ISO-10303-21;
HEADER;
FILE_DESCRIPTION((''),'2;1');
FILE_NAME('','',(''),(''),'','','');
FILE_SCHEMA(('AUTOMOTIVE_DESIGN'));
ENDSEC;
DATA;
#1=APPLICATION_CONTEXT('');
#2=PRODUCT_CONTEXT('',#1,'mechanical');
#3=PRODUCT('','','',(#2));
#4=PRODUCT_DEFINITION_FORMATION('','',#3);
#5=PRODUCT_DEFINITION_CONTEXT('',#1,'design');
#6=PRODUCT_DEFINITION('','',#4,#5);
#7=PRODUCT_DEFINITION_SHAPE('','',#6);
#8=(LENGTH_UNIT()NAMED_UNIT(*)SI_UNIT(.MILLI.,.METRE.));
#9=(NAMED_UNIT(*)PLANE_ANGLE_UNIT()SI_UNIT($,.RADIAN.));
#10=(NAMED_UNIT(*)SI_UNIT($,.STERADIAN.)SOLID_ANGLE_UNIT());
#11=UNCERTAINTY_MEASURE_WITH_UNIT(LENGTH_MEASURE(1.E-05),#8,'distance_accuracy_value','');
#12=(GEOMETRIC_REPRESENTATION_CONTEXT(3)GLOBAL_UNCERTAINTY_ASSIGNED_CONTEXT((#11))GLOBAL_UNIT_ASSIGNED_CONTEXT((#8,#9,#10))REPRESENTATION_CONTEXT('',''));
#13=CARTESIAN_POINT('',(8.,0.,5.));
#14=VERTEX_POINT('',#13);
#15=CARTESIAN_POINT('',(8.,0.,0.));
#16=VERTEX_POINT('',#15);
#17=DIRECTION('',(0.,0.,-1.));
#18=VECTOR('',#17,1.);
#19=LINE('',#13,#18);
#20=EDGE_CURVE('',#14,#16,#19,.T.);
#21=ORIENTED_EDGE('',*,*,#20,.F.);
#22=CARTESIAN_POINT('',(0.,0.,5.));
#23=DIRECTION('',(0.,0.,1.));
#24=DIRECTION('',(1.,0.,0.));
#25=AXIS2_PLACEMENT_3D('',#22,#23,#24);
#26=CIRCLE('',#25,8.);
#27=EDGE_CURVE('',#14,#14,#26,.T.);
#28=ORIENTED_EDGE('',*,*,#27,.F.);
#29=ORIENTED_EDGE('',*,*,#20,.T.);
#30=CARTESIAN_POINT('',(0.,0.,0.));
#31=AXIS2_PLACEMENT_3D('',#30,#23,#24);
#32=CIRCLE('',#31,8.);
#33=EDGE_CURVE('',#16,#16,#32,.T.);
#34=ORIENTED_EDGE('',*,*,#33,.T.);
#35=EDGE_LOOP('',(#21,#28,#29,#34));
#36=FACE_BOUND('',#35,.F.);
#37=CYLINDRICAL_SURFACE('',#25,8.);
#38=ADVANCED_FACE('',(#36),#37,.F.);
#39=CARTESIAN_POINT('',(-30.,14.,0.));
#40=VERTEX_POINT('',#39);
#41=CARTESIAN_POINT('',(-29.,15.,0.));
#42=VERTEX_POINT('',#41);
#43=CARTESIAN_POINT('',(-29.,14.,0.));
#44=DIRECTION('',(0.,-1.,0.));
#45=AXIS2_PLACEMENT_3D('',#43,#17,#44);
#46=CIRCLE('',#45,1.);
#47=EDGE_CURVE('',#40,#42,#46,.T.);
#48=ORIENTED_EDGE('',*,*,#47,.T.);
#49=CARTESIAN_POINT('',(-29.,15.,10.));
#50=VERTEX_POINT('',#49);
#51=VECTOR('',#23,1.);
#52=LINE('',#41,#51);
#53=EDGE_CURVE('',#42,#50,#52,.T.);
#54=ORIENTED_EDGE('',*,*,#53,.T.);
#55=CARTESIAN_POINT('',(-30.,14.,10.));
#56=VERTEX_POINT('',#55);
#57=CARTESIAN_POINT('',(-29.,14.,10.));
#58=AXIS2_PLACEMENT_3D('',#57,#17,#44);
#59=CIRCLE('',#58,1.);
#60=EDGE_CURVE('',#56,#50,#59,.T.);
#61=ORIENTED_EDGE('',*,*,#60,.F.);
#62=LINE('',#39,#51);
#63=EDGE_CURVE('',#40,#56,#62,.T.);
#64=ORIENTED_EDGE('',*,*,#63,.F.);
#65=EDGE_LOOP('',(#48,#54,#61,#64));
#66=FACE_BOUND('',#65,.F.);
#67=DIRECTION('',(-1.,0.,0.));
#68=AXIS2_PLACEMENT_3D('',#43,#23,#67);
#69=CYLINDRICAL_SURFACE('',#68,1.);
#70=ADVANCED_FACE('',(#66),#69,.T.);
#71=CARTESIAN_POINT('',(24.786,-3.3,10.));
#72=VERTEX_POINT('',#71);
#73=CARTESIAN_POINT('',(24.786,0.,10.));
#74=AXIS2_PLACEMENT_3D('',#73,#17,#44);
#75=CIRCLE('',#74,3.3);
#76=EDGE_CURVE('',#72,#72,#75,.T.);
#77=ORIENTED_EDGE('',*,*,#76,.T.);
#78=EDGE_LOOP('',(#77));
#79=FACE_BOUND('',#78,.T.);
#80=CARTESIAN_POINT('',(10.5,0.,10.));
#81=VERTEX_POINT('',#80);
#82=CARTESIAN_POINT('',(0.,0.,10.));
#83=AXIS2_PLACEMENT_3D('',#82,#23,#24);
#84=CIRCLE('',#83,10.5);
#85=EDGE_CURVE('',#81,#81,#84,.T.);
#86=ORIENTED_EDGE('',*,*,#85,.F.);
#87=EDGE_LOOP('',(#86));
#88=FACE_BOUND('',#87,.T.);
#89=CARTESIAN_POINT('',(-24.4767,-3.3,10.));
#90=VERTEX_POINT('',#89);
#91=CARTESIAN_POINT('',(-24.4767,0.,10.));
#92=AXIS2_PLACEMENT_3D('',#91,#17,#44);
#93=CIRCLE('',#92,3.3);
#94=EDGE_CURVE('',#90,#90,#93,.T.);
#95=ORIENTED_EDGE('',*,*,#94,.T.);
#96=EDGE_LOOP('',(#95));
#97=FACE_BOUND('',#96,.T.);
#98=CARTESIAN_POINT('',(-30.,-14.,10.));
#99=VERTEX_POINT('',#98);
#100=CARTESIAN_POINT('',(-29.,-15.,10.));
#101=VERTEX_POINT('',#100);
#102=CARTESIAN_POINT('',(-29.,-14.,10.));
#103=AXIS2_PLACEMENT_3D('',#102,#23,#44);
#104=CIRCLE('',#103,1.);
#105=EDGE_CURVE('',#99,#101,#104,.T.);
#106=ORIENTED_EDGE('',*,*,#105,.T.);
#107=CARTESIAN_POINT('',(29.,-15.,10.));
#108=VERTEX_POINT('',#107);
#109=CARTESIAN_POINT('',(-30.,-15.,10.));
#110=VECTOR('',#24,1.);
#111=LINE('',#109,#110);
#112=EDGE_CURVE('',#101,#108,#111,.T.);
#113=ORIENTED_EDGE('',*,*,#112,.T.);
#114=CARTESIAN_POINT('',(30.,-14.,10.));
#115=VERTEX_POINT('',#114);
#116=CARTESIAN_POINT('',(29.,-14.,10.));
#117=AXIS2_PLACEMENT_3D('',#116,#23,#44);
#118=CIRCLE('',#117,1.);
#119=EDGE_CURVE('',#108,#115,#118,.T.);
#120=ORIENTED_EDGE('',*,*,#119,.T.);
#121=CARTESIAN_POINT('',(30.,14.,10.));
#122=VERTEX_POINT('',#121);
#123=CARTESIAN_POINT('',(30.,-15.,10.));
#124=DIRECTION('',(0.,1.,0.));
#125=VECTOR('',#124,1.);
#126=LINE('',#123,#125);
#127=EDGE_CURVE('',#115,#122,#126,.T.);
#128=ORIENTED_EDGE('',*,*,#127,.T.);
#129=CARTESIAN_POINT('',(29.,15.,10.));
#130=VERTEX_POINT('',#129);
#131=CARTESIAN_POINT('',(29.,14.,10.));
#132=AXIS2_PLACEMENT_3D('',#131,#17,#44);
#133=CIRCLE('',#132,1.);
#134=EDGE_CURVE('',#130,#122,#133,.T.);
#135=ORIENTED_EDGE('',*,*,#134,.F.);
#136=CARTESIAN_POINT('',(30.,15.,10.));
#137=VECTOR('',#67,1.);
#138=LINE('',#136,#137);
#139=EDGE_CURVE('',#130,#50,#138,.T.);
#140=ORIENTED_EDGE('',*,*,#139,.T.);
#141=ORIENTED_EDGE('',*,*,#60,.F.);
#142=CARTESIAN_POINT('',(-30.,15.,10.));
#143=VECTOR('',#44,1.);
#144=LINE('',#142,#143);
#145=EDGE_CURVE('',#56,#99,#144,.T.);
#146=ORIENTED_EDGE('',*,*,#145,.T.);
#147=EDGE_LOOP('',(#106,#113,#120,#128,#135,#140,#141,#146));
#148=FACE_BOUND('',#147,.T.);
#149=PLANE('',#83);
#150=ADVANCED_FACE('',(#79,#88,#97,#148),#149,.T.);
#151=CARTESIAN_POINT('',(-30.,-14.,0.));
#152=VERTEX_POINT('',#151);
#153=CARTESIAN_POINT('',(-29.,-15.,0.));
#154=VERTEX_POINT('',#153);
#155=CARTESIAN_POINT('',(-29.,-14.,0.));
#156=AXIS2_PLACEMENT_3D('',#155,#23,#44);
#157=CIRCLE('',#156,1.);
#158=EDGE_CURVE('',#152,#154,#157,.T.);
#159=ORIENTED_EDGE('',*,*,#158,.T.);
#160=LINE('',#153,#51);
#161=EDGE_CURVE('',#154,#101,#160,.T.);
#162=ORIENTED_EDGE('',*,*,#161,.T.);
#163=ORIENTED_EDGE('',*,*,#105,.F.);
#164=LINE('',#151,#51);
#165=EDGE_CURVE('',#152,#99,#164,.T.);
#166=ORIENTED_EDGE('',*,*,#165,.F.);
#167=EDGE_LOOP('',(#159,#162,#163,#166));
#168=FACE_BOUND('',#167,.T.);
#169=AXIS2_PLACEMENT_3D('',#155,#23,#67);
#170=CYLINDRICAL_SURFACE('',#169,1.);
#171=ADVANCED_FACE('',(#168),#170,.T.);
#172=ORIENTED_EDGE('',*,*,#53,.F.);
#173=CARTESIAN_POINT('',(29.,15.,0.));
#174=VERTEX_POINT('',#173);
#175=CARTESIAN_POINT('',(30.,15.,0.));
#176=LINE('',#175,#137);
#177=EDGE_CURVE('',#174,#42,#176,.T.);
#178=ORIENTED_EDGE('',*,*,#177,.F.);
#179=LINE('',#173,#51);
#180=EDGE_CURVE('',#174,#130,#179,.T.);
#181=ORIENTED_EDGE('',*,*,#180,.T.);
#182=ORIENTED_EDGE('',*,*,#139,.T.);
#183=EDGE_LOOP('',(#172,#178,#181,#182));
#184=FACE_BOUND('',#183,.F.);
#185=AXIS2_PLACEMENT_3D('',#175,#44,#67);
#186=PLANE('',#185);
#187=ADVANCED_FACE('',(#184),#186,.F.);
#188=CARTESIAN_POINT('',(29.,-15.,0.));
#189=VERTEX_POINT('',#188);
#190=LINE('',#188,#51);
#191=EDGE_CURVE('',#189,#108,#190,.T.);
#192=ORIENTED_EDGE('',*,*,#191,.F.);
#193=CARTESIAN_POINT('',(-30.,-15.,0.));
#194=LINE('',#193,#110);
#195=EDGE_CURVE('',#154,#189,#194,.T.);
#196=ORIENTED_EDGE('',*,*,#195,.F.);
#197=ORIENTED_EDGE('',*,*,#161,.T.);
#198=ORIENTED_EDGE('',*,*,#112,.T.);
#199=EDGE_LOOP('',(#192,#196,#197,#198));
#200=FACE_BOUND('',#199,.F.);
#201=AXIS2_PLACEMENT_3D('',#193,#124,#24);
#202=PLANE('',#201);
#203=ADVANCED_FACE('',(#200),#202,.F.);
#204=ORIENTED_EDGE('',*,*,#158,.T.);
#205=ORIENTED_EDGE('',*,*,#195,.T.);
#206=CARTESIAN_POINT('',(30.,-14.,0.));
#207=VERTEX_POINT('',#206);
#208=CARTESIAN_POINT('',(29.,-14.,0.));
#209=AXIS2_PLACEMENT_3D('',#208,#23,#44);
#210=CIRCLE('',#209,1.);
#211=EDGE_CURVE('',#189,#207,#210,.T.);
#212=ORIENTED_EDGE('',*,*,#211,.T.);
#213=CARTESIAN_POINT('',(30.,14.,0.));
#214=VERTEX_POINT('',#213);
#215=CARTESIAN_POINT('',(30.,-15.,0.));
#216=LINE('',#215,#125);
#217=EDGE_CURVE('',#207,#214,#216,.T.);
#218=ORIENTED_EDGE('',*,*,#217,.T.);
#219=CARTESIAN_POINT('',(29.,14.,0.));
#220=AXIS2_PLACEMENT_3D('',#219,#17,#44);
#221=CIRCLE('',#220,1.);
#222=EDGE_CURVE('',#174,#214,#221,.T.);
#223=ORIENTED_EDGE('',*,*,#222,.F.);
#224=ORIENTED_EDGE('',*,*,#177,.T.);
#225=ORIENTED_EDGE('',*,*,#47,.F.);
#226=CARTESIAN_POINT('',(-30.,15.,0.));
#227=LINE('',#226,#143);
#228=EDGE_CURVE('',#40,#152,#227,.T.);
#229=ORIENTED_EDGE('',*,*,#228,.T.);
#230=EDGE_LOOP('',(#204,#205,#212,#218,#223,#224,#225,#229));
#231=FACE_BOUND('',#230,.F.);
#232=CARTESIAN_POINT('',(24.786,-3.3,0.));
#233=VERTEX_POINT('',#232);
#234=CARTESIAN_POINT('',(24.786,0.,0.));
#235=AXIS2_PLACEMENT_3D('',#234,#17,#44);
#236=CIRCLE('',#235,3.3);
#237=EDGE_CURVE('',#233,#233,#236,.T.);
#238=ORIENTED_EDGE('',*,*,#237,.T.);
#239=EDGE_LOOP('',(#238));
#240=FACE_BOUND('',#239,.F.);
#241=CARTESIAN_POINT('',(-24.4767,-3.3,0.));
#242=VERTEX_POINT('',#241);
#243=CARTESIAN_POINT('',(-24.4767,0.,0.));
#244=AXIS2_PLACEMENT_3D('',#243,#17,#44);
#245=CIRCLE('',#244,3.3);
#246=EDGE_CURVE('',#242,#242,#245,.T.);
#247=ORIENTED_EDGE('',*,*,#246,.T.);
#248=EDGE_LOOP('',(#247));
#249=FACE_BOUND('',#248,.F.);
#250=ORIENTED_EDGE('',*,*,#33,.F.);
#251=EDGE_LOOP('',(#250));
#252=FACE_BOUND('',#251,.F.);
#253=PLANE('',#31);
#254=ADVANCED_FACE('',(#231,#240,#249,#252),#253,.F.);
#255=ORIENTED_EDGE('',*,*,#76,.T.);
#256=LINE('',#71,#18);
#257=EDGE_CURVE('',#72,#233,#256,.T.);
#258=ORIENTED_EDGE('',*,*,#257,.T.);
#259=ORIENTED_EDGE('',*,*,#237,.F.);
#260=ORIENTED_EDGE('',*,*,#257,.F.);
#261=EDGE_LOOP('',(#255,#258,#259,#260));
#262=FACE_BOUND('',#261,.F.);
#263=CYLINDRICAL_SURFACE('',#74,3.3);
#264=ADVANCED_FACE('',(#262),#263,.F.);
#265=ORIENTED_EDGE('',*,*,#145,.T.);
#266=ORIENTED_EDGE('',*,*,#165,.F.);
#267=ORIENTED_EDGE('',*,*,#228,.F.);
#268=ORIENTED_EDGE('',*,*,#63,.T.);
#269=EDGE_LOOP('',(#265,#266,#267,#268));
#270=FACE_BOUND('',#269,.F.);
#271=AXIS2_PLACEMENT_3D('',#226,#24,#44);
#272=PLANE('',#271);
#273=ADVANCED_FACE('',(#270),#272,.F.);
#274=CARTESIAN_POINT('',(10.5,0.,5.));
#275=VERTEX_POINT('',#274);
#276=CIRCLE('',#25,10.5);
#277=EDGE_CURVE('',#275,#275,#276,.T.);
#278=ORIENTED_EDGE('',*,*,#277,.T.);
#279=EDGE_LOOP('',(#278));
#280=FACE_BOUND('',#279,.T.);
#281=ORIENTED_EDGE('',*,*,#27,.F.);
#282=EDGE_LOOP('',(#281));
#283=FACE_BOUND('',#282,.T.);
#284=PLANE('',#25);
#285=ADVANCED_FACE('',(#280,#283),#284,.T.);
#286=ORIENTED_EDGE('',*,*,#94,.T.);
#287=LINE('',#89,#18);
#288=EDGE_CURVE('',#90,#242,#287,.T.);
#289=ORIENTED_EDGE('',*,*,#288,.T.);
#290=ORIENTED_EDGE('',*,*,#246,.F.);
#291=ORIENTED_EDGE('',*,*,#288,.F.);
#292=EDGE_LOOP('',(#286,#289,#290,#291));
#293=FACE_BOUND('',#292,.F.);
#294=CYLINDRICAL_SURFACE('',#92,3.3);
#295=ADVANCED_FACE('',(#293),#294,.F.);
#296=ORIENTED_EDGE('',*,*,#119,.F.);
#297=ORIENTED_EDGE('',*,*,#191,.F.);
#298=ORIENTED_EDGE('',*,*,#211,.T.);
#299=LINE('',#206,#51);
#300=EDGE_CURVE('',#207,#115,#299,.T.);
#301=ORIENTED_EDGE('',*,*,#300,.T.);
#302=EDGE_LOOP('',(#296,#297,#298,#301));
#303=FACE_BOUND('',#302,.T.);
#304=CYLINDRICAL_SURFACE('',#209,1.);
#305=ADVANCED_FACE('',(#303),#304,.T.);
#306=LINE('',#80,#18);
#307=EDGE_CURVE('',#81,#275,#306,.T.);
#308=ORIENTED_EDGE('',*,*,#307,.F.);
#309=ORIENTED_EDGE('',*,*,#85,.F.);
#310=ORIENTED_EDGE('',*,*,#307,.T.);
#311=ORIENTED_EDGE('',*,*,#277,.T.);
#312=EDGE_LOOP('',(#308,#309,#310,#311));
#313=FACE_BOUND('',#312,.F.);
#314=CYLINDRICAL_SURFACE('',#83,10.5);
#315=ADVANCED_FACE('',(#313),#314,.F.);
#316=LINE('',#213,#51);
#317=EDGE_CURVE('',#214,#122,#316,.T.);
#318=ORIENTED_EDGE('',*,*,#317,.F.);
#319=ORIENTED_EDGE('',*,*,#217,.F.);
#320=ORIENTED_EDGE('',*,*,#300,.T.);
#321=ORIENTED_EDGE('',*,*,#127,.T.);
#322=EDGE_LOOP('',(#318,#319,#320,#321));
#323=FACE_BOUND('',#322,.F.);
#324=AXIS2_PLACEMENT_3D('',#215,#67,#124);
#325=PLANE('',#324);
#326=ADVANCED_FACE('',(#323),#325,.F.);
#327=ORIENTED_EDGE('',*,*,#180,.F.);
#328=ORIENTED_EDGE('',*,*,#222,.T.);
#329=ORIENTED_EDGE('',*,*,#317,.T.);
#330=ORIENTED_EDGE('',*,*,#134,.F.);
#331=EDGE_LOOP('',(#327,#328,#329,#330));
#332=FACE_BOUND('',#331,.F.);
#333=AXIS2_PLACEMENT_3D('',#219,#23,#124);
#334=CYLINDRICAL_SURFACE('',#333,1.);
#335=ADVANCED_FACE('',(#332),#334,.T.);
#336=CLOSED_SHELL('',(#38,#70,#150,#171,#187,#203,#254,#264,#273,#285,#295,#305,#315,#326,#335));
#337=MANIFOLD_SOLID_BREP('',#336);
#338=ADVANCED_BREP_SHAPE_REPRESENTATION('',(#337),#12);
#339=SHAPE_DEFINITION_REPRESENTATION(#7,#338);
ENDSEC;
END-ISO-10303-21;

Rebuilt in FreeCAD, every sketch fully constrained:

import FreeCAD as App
import Part
import Sketcher
from FreeCAD import Vector


def edges_at(feature, points):
    """Names of the edges that pass closest to the given points."""
    edges = feature.Shape.Edges
    near = lambda p: min(range(len(edges)), key=lambda i: edges[i].distToShape(Part.Vertex(*p))[0])
    return sorted({f"Edge{near(p) + 1}" for p in points})

doc = App.newDocument("Part")
body = doc.addObject("PartDesign::Body", "Body")

# Sketch on XY plane
sketch1 = body.newObject("Sketcher::SketchObject", "Sketch")
sketch1.AttachmentSupport = (doc.getObject("XY_Plane"), [""])
sketch1.MapMode = "FlatFace"
sketch1.addGeometry([
    Part.LineSegment(Vector(-30, 15, 0), Vector(-30, -15, 0)),
    Part.LineSegment(Vector(-30, -15, 0), Vector(30, -15, 0)),
    Part.LineSegment(Vector(30, -15, 0), Vector(30, 15, 0)),
    Part.LineSegment(Vector(30, 15, 0), Vector(-30, 15, 0)),
], False)
sketch1.addConstraint([
    Sketcher.Constraint("Coincident", 0, 2, 1, 1),
    Sketcher.Constraint("Coincident", 1, 2, 2, 1),
    Sketcher.Constraint("Coincident", 2, 2, 3, 1),
    Sketcher.Constraint("Coincident", 3, 2, 0, 1),
    Sketcher.Constraint("Vertical", 0),
    Sketcher.Constraint("Horizontal", 1),
    Sketcher.Constraint("Vertical", 2),
    Sketcher.Constraint("Horizontal", 3),
    Sketcher.Constraint("Symmetric", 0, 2, 2, 2, -1, 1),
    Sketcher.Constraint("DistanceX", 1, 1, 1, 2, 60.0),
    Sketcher.Constraint("DistanceY", 0, 2, 0, 1, 30.0),
])
pad1 = body.newObject("PartDesign::Pad", "Pad")
pad1.Profile = sketch1
pad1.Length = 10

# Sketch on XY plane
sketch2 = body.newObject("Sketcher::SketchObject", "Sketch001")
sketch2.AttachmentSupport = (doc.getObject("XY_Plane"), [""])
sketch2.MapMode = "FlatFace"
sketch2.AttachmentOffset = App.Placement(Vector(0, 0, 10), App.Rotation())
sketch2.addGeometry(Part.Circle(Vector(0, 0, 0), Vector(0, 0, 1), 10), False)
sketch2.addConstraint([
    Sketcher.Constraint("Coincident", 0, 3, -1, 1),
    Sketcher.Constraint("Diameter", 0, 21.0),
])
pocket1 = body.newObject("PartDesign::Pocket", "Pocket")
pocket1.Profile = sketch2
pocket1.Length = 5

# Sketch on XY plane
sketch3 = body.newObject("Sketcher::SketchObject", "Sketch002")
sketch3.AttachmentSupport = (doc.getObject("XY_Plane"), [""])
sketch3.MapMode = "FlatFace"
sketch3.AttachmentOffset = App.Placement(Vector(0, 0, 5), App.Rotation())
sketch3.addGeometry(Part.Circle(Vector(0, 0, 0), Vector(0, 0, 1), 8), False)
sketch3.addConstraint([
    Sketcher.Constraint("Coincident", 0, 3, -1, 1),
    Sketcher.Constraint("Diameter", 0, 16.0),
])
pocket2 = body.newObject("PartDesign::Pocket", "Pocket001")
pocket2.Profile = sketch3
pocket2.Length = 5

# Sketch on XY plane
sketch4 = body.newObject("Sketcher::SketchObject", "Sketch003")
sketch4.AttachmentSupport = (doc.getObject("XY_Plane"), [""])
sketch4.MapMode = "FlatFace"
sketch4.AttachmentOffset = App.Placement(Vector(0, 0, 10), App.Rotation())
sketch4.addGeometry([
    Part.Circle(Vector(-24.5, 0, 0), Vector(0, 0, 1), 3.3),
    Part.Circle(Vector(24.8, 0, 0), Vector(0, 0, 1), 3.3),
], False)
sketch4.addConstraint([
    Sketcher.Constraint("Equal", 0, 1),
    Sketcher.Constraint("PointOnObject", 0, 3, -1),
    Sketcher.Constraint("PointOnObject", 1, 3, -1),
    Sketcher.Constraint("Diameter", 0, 6.6),
    Sketcher.Constraint("DistanceX", -1, 1, 1, 3, 24.786),
    Sketcher.Constraint("DistanceX", 0, 3, -1, 1, 24.4767),
])
doc.recompute()
hole = body.newObject("PartDesign::Hole", "Hole")
hole.Profile = sketch4
hole.ThreadType = "None"
hole.Diameter = 6.6
hole.DepthType = "ThroughAll"
doc.recompute()

fillet = body.newObject("PartDesign::Fillet", "Fillet")
fillet.Base = (hole, edges_at(hole, [
    (30, 15, 5),
    (30, -15, 5),
    (-30, 15, 5),
    (-30, -15, 5),
]))
fillet.Radius = 1

doc.recompute()
